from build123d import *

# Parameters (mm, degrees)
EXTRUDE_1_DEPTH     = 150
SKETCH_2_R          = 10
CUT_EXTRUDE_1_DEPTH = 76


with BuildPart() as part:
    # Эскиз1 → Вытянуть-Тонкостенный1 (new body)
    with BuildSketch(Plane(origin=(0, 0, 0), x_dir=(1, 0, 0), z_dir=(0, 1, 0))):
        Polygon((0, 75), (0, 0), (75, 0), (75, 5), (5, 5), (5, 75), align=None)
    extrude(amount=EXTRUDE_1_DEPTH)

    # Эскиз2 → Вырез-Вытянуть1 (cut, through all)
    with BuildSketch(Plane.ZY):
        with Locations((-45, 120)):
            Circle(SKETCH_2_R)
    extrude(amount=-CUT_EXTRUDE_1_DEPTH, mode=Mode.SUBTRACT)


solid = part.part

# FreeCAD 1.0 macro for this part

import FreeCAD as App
import Part
import Sketcher

doc = App.newDocument("Part")
params = doc.addObject("Spreadsheet::Sheet", "Params")
for row, (alias, value) in enumerate([
    ("sketch1_width", "75 mm"),
    ("sketch1_width2", "70 mm"),
    ("pad1_length", "150 mm"),
    ("sketch2_diameter", "20 mm"),
], start=1):
    params.set(f"A{row}", alias)
    params.set(f"B{row}", "=" + value)
    params.setAlias(f"B{row}", alias)

body = doc.addObject("PartDesign::Body", "Body")

# Sketch on XZ plane
sketch1 = body.newObject("Sketcher::SketchObject", "Sketch")
sketch1.AttachmentSupport = (doc.getObject("XZ_Plane"), [""])
sketch1.MapMode = "FlatFace"
sketch1.addGeometry(Part.LineSegment(App.Vector(0, -75, 0), App.Vector(0, 0, 0)), False)
sketch1.addGeometry(Part.LineSegment(App.Vector(0, 0, 0), App.Vector(75, 0, 0)), False)
sketch1.addGeometry(Part.LineSegment(App.Vector(75, 0, 0), App.Vector(75, -5, 0)), False)
sketch1.addGeometry(Part.LineSegment(App.Vector(75, -5, 0), App.Vector(5, -5, 0)), False)
sketch1.addGeometry(Part.LineSegment(App.Vector(5, -5, 0), App.Vector(5, -75, 0)), False)
sketch1.addGeometry(Part.LineSegment(App.Vector(5, -75, 0), App.Vector(0, -75, 0)), False)
sketch1.addConstraint(Sketcher.Constraint("Coincident", 0, 2, 1, 1))
sketch1.addConstraint(Sketcher.Constraint("Coincident", 1, 2, 2, 1))
sketch1.addConstraint(Sketcher.Constraint("Coincident", 2, 2, 3, 1))
sketch1.addConstraint(Sketcher.Constraint("Coincident", 3, 2, 4, 1))
sketch1.addConstraint(Sketcher.Constraint("Coincident", 4, 2, 5, 1))
sketch1.addConstraint(Sketcher.Constraint("Coincident", 5, 2, 0, 1))
sketch1.addConstraint(Sketcher.Constraint("Vertical", 0))
sketch1.addConstraint(Sketcher.Constraint("Horizontal", 1))
sketch1.addConstraint(Sketcher.Constraint("Vertical", 2))
sketch1.addConstraint(Sketcher.Constraint("Horizontal", 3))
sketch1.addConstraint(Sketcher.Constraint("Vertical", 4))
sketch1.addConstraint(Sketcher.Constraint("Horizontal", 5))
sketch1.addConstraint(Sketcher.Constraint("Coincident", 0, 2, -1, 1))
sketch1.addConstraint(Sketcher.Constraint("Equal", 1, 0))
sketch1.addConstraint(Sketcher.Constraint("Equal", 5, 2))
sketch1.addConstraint(Sketcher.Constraint("DistanceX", 1, 1, 1, 2, 75.0))
sketch1.addConstraint(Sketcher.Constraint("DistanceX", 3, 2, 3, 1, 70.0))
sketch1.setExpression("Constraints[15]", "Params.sketch1_width")
sketch1.setExpression("Constraints[16]", "Params.sketch1_width2")
pad1 = body.newObject("PartDesign::Pad", "Pad")
pad1.Profile = sketch1
pad1.setExpression("Length", "Params.pad1_length")
pad1.Reversed = True

# Sketch on YZ plane
sketch2 = body.newObject("Sketcher::SketchObject", "Sketch001")
sketch2.AttachmentSupport = (doc.getObject("YZ_Plane"), [""])
sketch2.MapMode = "FlatFace"
sketch2.addGeometry(Part.Circle(App.Vector(120, -45, 0), App.Vector(0, 0, 1), 10), False)
sketch2.addConstraint(Sketcher.Constraint("Diameter", 0, 20.0))
sketch2.addConstraint(Sketcher.Constraint("DistanceX", -1, 1, 0, 3, 120.0))
sketch2.addConstraint(Sketcher.Constraint("DistanceY", 0, 3, -1, 1, 45.0))
sketch2.setExpression("Constraints[0]", "Params.sketch2_diameter")
pocket1 = body.newObject("PartDesign::Pocket", "Pocket")
pocket1.Profile = sketch2
pocket1.Type = "ThroughAll"
pocket1.Reversed = True

doc.recompute()
